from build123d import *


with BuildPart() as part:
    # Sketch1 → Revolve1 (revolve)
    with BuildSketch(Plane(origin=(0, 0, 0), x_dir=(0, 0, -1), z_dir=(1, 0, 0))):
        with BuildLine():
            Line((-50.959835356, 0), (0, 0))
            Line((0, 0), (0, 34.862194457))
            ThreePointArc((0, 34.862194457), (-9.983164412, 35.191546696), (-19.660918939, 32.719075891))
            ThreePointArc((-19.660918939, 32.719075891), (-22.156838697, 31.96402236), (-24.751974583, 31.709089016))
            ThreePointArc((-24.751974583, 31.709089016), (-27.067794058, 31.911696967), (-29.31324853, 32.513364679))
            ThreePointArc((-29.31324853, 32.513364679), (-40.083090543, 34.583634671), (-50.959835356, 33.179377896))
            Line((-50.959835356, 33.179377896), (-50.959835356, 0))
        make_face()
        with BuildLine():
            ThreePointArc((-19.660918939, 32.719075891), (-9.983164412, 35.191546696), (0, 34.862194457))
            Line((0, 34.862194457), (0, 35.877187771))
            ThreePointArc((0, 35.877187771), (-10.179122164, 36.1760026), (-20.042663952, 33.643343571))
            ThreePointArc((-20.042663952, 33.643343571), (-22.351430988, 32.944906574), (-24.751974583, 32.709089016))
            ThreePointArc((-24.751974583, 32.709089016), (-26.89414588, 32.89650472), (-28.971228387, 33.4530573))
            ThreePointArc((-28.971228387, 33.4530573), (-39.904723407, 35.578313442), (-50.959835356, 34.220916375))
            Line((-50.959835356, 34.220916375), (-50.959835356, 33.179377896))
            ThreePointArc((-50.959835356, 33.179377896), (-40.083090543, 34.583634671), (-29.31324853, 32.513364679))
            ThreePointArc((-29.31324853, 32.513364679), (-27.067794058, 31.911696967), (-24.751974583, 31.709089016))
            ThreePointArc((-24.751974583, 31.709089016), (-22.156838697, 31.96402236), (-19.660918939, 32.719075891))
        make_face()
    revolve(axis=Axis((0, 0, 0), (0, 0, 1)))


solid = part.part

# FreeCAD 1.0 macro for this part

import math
import FreeCAD as App
import Part
import Sketcher

doc = App.newDocument("Part")
body = doc.addObject("PartDesign::Body", "Body")

sketch1 = body.newObject("Sketcher::SketchObject", "Sketch")
sketch1.AttachmentSupport = (doc.getObject("YZ_Plane"), [""])
sketch1.MapMode = "FlatFace"
sketch1.addGeometry(Part.LineSegment(App.Vector(0, 51, 0), App.Vector(0, 0, 0)), False)
sketch1.addGeometry(Part.LineSegment(App.Vector(0, 0, 0), App.Vector(35.9, 0, 0)), False)
sketch1.addGeometry(Part.ArcOfCircle(Part.Circle(App.Vector(0, 6.1, 0), App.Vector(0, 0, 1), 36.4), math.radians(-10), math.radians(22)), False)
sketch1.addGeometry(Part.ArcOfCircle(Part.Circle(App.Vector(45, 24.8, 0), App.Vector(0, 0, 1), 12.3), math.radians(-180), math.radians(-158)), False)
sketch1.addGeometry(Part.ArcOfCircle(Part.Circle(App.Vector(45, 24.8, 0), App.Vector(0, 0, 1), 12.3), math.radians(160), math.radians(180)), False)
sketch1.addGeometry(Part.ArcOfCircle(Part.Circle(App.Vector(0, 41.1, 0), App.Vector(0, 0, 1), 35.6), math.radians(-20), math.radians(16)), False)
sketch1.addGeometry(Part.LineSegment(App.Vector(34.2, 51, 0), App.Vector(0, 51, 0)), False)
sketch1.addConstraint(Sketcher.Constraint("Coincident", 0, 2, 1, 1))
sketch1.addConstraint(Sketcher.Constraint("Coincident", 1, 2, 2, 1))
sketch1.addConstraint(Sketcher.Constraint("Tangent", 2, 2, 3, 2))
sketch1.addConstraint(Sketcher.Constraint("Tangent", 3, 1, 4, 2))
sketch1.addConstraint(Sketcher.Constraint("Tangent", 4, 1, 5, 1))
sketch1.addConstraint(Sketcher.Constraint("Coincident", 5, 2, 6, 1))
sketch1.addConstraint(Sketcher.Constraint("Coincident", 6, 2, 0, 1))
sketch1.addConstraint(Sketcher.Constraint("Vertical", 0))
sketch1.addConstraint(Sketcher.Constraint("Horizontal", 1))
sketch1.addConstraint(Sketcher.Constraint("Horizontal", 6))
sketch1.addConstraint(Sketcher.Constraint("Coincident", 0, 2, -1, 1))
sketch1.addConstraint(Sketcher.Constraint("Equal", 3, 4))
sketch1.addConstraint(Sketcher.Constraint("PointOnObject", 2, 3, -2))
sketch1.addConstraint(Sketcher.Constraint("PointOnObject", 5, 3, -2))
sketch1.addConstraint(Sketcher.Constraint("Horizontal", 4, 3, 3, 1))
sketch1.addConstraint(Sketcher.Constraint("Radius", 2, 36.4))
sketch1.addConstraint(Sketcher.Constraint("Radius", 5, 35.6))
sketch1.addConstraint(Sketcher.Constraint("DistanceY", 2, 3, 5, 3, 35.0))
sketch1.addConstraint(Sketcher.Constraint("Radius", 3, 12.336273))
sketch1.addConstraint(Sketcher.Constraint("DistanceX", 3, 1, 1, 2, 3.168099))
sketch1.addConstraint(Sketcher.Constraint("DistanceX", 6, 2, 6, 1, 34.220916))
revolution = body.newObject("PartDesign::Revolution", "Revolution")
revolution.Profile = sketch1
revolution.ReferenceAxis = (sketch1, ["V_Axis"])
revolution.Angle = 360

doc.recompute()
